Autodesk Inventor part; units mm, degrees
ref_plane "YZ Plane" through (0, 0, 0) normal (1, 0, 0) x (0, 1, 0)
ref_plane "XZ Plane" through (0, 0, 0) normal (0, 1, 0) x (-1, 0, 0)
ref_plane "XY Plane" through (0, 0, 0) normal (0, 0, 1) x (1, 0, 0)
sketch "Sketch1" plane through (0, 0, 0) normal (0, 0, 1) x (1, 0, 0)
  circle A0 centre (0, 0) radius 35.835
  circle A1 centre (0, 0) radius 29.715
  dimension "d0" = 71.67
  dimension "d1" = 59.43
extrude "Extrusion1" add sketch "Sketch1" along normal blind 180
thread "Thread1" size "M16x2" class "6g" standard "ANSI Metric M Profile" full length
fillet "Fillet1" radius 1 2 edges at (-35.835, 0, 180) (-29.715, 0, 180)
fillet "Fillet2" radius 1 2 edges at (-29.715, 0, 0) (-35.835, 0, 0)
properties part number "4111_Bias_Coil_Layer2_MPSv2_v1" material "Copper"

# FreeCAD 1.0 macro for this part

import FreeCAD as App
import Part
import Sketcher
from FreeCAD import Vector
Q = App.Units.Quantity


def edges_at(feature, points):
    """Names of the edges that pass closest to the given points."""
    edges = feature.Shape.Edges
    near = lambda p: min(range(len(edges)), key=lambda i: edges[i].distToShape(Part.Vertex(*p))[0])
    return sorted({f"Edge{near(p) + 1}" for p in points})

doc = App.newDocument("Part")
body = doc.addObject("PartDesign::Body", "Body")

# Sketch on XY plane
sketch1 = doc.addObject("Sketcher::SketchObject", "Sketch")
body.addObject(sketch1)
sketch1.AttachmentSupport = (doc.XY_Plane, [""])
sketch1.MapMode = "FlatFace"
sketch1.addGeometry([
    Part.Circle(Vector(0, 0, 0), Vector(0, 0, 1), 35.835),
    Part.Circle(Vector(0, 0, 0), Vector(0, 0, 1), 29.715),
], False)
sketch1.addConstraint([
    Sketcher.Constraint("Coincident", 0, 3, -1, 1),
    Sketcher.Constraint("Coincident", 1, 3, -1, 1),
    Sketcher.Constraint("Diameter", 0, Q("71.67 mm")),
    Sketcher.Constraint("Diameter", 1, Q("59.43 mm")),
])
pad1 = doc.addObject("PartDesign::Pad", "Pad")
body.addObject(pad1)
pad1.Profile = sketch1
pad1.Length = 180
doc.recompute()

fillet = doc.addObject("PartDesign::Fillet", "Fillet")
body.addObject(fillet)
fillet.Base = (pad1, edges_at(pad1, [(-35.835, 0, 180), (-29.715, 0, 180)]))
fillet.Radius = 1
doc.recompute()

fillet2 = doc.addObject("PartDesign::Fillet", "Fillet001")
body.addObject(fillet2)
fillet2.Base = (fillet, edges_at(fillet, [(-29.715, 0, 0), (-35.835, 0, 0)]))
fillet2.Radius = 1

doc.recompute()
